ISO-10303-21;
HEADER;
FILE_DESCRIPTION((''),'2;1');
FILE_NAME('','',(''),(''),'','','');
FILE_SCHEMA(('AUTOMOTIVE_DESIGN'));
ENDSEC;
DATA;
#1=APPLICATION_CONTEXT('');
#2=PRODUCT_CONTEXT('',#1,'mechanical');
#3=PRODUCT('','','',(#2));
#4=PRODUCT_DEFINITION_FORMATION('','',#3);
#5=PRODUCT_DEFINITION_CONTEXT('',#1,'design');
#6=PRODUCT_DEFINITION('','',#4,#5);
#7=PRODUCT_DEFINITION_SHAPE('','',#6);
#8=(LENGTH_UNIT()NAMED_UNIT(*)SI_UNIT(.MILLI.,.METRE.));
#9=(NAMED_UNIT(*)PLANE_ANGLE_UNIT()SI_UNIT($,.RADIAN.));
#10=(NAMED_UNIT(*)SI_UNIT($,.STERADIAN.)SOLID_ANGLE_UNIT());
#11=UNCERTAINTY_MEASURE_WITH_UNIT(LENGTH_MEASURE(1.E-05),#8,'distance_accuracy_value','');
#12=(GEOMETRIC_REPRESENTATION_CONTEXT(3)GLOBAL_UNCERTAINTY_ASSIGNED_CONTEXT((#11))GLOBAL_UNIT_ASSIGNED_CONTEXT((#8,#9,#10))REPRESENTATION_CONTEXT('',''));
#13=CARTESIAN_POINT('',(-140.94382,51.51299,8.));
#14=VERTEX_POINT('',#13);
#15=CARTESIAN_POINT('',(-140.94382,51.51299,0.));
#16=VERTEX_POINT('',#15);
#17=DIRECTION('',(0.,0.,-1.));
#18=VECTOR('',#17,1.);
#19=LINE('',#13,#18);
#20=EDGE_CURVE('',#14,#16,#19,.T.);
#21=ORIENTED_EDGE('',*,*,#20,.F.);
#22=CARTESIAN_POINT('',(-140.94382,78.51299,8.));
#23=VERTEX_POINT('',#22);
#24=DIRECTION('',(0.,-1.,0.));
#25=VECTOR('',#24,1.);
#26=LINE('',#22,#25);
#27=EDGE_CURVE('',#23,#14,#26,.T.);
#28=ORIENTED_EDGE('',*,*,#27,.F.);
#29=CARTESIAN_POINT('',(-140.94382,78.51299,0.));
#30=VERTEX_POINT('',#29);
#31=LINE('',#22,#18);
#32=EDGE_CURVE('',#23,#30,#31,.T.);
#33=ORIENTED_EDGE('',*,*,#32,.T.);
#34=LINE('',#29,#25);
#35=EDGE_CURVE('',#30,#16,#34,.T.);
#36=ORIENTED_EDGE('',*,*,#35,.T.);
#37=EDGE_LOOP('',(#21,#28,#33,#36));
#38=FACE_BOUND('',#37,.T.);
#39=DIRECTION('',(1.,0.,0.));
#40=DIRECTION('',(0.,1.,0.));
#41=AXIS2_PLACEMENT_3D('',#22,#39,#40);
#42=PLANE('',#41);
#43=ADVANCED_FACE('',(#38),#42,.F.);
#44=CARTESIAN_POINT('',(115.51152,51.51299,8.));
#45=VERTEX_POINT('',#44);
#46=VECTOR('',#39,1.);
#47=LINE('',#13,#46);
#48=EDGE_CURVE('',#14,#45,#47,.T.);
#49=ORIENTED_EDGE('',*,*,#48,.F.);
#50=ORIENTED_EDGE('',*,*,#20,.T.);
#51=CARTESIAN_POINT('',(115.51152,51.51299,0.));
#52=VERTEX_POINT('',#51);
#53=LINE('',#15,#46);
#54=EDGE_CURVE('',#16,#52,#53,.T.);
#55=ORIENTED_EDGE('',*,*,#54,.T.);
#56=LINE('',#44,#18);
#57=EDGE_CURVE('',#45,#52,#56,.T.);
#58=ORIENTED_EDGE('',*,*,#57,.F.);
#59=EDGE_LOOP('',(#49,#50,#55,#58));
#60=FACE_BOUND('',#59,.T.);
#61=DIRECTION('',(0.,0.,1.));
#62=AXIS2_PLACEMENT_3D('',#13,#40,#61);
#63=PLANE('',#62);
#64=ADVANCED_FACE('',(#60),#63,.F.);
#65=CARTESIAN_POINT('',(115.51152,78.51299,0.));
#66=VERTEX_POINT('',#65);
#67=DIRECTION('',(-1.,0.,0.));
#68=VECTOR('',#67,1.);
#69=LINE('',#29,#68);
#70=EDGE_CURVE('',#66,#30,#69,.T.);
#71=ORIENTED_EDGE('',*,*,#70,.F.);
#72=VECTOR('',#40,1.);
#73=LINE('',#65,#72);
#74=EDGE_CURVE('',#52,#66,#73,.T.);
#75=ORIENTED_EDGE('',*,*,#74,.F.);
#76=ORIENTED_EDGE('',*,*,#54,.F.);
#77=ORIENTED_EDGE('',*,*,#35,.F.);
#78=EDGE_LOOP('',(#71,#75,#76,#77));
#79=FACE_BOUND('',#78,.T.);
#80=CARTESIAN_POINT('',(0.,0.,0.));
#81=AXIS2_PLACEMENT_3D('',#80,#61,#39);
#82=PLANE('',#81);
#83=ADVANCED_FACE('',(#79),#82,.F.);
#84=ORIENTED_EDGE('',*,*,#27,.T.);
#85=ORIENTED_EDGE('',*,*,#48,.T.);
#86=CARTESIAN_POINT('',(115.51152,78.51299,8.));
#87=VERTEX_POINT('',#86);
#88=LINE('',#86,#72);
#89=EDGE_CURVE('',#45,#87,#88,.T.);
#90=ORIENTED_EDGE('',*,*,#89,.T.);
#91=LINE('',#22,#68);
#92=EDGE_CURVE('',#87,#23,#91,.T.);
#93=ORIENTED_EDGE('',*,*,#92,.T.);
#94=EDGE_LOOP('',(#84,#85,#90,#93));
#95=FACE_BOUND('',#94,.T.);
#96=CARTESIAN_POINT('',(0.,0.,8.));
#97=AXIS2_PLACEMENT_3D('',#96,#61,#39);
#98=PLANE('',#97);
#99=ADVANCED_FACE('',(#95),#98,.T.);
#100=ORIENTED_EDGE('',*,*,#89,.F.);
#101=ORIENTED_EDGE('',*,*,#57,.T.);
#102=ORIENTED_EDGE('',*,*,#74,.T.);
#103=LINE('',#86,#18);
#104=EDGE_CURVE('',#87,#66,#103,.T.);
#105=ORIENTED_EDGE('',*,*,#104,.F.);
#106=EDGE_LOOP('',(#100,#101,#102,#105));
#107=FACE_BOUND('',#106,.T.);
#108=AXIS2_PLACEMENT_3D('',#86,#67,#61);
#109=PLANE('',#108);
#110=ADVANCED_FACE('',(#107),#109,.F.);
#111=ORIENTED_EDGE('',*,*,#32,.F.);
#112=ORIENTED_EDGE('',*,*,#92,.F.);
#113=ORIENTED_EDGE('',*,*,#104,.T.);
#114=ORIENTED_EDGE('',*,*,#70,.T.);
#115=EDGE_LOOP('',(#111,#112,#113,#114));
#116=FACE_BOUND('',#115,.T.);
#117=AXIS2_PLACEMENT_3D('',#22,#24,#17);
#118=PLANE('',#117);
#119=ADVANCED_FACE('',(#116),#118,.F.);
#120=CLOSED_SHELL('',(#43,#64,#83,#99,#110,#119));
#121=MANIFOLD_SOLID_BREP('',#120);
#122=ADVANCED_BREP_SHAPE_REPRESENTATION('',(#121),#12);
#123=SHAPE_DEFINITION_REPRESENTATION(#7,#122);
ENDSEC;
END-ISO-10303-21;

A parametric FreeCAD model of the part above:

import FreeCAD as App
import Part
import Sketcher
from FreeCAD import Vector
Q = App.Units.Quantity

doc = App.newDocument("Part")
params = doc.addObject("Spreadsheet::Sheet", "Params")
for row, (alias, value) in enumerate([
    ("sketch1_height", "27 mm"),
    ("pad1_length", "8 mm"),
], start=1):
    params.set(f"A{row}", alias)
    params.set(f"B{row}", "=" + value)
    params.setAlias(f"B{row}", alias)

body = doc.addObject("PartDesign::Body", "Body")

# Sketch on XY plane
sketch1 = body.newObject("Sketcher::SketchObject", "Sketch")
sketch1.AttachmentSupport = (doc.getObject("XY_Plane"), [""])
sketch1.MapMode = "FlatFace"
sketch1.addGeometry([
    Part.LineSegment(Vector(-141, 79, 0), Vector(-141, 52, 0)),
    Part.LineSegment(Vector(-141, 52, 0), Vector(116, 52, 0)),
    Part.LineSegment(Vector(116, 52, 0), Vector(116, 79, 0)),
    Part.LineSegment(Vector(116, 79, 0), Vector(-141, 79, 0)),
], False)
sketch1.addConstraint([
    Sketcher.Constraint("Coincident", 0, 2, 1, 1),
    Sketcher.Constraint("Coincident", 1, 2, 2, 1),
    Sketcher.Constraint("Coincident", 2, 2, 3, 1),
    Sketcher.Constraint("Coincident", 3, 2, 0, 1),
    Sketcher.Constraint("Vertical", 0),
    Sketcher.Constraint("Horizontal", 1),
    Sketcher.Constraint("Vertical", 2),
    Sketcher.Constraint("Horizontal", 3),
    Sketcher.Constraint("DistanceY", 0, 2, 0, 1, Q("27 mm")),
    Sketcher.Constraint("DistanceX", 1, 1, 1, 2, Q("256.45534 mm")),
    Sketcher.Constraint("DistanceX", 0, 2, -1, 1, Q("140.94382 mm")),
    Sketcher.Constraint("DistanceY", -1, 1, 0, 2, Q("51.51299 mm")),
])
sketch1.setExpression("Constraints[8]", "Params.sketch1_height")
pad1 = body.newObject("PartDesign::Pad", "Pad")
pad1.Profile = sketch1
pad1.setExpression("Length", "Params.pad1_length")

doc.recompute()
